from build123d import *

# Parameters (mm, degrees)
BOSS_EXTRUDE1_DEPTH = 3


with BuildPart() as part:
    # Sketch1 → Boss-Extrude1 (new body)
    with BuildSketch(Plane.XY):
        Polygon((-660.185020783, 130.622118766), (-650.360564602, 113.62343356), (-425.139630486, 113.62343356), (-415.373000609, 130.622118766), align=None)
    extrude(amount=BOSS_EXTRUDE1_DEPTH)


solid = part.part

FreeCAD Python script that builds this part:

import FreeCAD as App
import Part
import Sketcher

V = App.Vector
Q = App.Units.Quantity


def add_polygon(sketch, points):
    """Adds a closed chain of lines whose ends are joined by coincident constraints."""
    first, n = sketch.GeometryCount, len(points)
    for a, b in zip(points, points[1:] + points[:1]):
        sketch.addGeometry(Part.LineSegment(App.Vector(*a, 0), App.Vector(*b, 0)), False)
    for i in range(n):
        sketch.addConstraint(Sketcher.Constraint("Coincident", first + i, 2, first + (i + 1) % n, 1))

doc = App.newDocument("Part")
body = doc.addObject("PartDesign::Body", "Body")

sketch1 = body.newObject("Sketcher::SketchObject", "Sketch")
sketch1.AttachmentSupport = (doc.getObject("XY_Plane"), [""])
sketch1.MapMode = "FlatFace"
add_polygon(sketch1, [(-660.185021, 130.622119), (-650.360565, 113.623434), (-425.13963, 113.623434), (-415.373001, 130.622119)])
sketch1.addConstraint(Sketcher.Constraint("Horizontal", 1))
sketch1.addConstraint(Sketcher.Constraint("Horizontal", 3))
sketch1.addConstraint(Sketcher.Constraint("DistanceX", 2, 2, -1, 1, Q("415.373001 mm")))
sketch1.addConstraint(Sketcher.Constraint("DistanceX", 3, 2, 3, 1, Q("244.81202 mm")))
sketch1.addConstraint(Sketcher.Constraint("Distance", 2, Q("19.604651 mm")))
sketch1.addConstraint(Sketcher.Constraint("DistanceX", 1, 1, 1, 2, Q("225.220934 mm")))
sketch1.addConstraint(Sketcher.Constraint("DistanceX", 1, 2, -1, 1, Q("425.13963 mm")))
sketch1.addConstraint(Sketcher.Constraint("DistanceY", -1, 1, 2, 2, Q("130.622119 mm")))
pad1 = body.newObject("PartDesign::Pad", "Pad")
pad1.Profile = sketch1
pad1.Length = 3

doc.recompute()
